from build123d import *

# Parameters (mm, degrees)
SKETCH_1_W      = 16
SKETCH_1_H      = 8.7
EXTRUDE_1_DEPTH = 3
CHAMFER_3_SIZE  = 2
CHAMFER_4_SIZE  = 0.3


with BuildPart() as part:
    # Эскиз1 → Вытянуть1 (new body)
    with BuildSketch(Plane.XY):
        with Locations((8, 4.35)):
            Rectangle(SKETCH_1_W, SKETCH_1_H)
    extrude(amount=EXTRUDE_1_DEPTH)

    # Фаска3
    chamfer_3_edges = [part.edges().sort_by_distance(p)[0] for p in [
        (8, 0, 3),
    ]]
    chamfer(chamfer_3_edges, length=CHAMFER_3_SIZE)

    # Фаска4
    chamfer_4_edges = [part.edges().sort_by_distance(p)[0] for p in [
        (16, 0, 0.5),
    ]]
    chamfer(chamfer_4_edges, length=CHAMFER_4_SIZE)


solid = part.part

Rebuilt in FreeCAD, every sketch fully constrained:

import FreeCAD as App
import Part
import Sketcher

V = App.Vector


def edges_at(feature, points):
    """Names of the edges that pass closest to the given points."""
    edges = feature.Shape.Edges
    near = lambda p: min(range(len(edges)), key=lambda i: edges[i].distToShape(Part.Vertex(*p))[0])
    return sorted({f"Edge{near(p) + 1}" for p in points})


def add_polygon(sketch, points):
    """Adds a closed chain of lines whose ends are joined by coincident constraints."""
    first, n = sketch.GeometryCount, len(points)
    for a, b in zip(points, points[1:] + points[:1]):
        sketch.addGeometry(Part.LineSegment(App.Vector(*a, 0), App.Vector(*b, 0)), False)
    for i in range(n):
        sketch.addConstraint(Sketcher.Constraint("Coincident", first + i, 2, first + (i + 1) % n, 1))

doc = App.newDocument("Part")
body = doc.addObject("PartDesign::Body", "Body")

# Sketch on XY plane
sketch1 = body.newObject("Sketcher::SketchObject", "Sketch")
sketch1.AttachmentSupport = (doc.getObject("XY_Plane"), [""])
sketch1.MapMode = "FlatFace"
add_polygon(sketch1, [(0, 9), (0, 0), (16, 0), (16, 9)])  # lines 0-3
sketch1.addConstraint([
    Sketcher.Constraint("Vertical", 0),
    Sketcher.Constraint("Horizontal", 1),
    Sketcher.Constraint("Vertical", 2),
    Sketcher.Constraint("Horizontal", 3),
    Sketcher.Constraint("Coincident", 0, 2, -1, 1),
    Sketcher.Constraint("DistanceX", 1, 1, 1, 2, 16.0),
    Sketcher.Constraint("DistanceY", 0, 2, 0, 1, 8.7),
])
pad1 = body.newObject("PartDesign::Pad", "Pad")
pad1.Profile = sketch1
pad1.Length = 3
doc.recompute()

chamfer = body.newObject("PartDesign::Chamfer", "Chamfer")
chamfer.Base = (pad1, edges_at(pad1, [(8, 0, 3)]))
chamfer.Size = 2
doc.recompute()

chamfer2 = body.newObject("PartDesign::Chamfer", "Chamfer001")
chamfer2.Base = (chamfer, edges_at(chamfer, [(16, 0, 0.5)]))
chamfer2.Size = 0.3

doc.recompute()
